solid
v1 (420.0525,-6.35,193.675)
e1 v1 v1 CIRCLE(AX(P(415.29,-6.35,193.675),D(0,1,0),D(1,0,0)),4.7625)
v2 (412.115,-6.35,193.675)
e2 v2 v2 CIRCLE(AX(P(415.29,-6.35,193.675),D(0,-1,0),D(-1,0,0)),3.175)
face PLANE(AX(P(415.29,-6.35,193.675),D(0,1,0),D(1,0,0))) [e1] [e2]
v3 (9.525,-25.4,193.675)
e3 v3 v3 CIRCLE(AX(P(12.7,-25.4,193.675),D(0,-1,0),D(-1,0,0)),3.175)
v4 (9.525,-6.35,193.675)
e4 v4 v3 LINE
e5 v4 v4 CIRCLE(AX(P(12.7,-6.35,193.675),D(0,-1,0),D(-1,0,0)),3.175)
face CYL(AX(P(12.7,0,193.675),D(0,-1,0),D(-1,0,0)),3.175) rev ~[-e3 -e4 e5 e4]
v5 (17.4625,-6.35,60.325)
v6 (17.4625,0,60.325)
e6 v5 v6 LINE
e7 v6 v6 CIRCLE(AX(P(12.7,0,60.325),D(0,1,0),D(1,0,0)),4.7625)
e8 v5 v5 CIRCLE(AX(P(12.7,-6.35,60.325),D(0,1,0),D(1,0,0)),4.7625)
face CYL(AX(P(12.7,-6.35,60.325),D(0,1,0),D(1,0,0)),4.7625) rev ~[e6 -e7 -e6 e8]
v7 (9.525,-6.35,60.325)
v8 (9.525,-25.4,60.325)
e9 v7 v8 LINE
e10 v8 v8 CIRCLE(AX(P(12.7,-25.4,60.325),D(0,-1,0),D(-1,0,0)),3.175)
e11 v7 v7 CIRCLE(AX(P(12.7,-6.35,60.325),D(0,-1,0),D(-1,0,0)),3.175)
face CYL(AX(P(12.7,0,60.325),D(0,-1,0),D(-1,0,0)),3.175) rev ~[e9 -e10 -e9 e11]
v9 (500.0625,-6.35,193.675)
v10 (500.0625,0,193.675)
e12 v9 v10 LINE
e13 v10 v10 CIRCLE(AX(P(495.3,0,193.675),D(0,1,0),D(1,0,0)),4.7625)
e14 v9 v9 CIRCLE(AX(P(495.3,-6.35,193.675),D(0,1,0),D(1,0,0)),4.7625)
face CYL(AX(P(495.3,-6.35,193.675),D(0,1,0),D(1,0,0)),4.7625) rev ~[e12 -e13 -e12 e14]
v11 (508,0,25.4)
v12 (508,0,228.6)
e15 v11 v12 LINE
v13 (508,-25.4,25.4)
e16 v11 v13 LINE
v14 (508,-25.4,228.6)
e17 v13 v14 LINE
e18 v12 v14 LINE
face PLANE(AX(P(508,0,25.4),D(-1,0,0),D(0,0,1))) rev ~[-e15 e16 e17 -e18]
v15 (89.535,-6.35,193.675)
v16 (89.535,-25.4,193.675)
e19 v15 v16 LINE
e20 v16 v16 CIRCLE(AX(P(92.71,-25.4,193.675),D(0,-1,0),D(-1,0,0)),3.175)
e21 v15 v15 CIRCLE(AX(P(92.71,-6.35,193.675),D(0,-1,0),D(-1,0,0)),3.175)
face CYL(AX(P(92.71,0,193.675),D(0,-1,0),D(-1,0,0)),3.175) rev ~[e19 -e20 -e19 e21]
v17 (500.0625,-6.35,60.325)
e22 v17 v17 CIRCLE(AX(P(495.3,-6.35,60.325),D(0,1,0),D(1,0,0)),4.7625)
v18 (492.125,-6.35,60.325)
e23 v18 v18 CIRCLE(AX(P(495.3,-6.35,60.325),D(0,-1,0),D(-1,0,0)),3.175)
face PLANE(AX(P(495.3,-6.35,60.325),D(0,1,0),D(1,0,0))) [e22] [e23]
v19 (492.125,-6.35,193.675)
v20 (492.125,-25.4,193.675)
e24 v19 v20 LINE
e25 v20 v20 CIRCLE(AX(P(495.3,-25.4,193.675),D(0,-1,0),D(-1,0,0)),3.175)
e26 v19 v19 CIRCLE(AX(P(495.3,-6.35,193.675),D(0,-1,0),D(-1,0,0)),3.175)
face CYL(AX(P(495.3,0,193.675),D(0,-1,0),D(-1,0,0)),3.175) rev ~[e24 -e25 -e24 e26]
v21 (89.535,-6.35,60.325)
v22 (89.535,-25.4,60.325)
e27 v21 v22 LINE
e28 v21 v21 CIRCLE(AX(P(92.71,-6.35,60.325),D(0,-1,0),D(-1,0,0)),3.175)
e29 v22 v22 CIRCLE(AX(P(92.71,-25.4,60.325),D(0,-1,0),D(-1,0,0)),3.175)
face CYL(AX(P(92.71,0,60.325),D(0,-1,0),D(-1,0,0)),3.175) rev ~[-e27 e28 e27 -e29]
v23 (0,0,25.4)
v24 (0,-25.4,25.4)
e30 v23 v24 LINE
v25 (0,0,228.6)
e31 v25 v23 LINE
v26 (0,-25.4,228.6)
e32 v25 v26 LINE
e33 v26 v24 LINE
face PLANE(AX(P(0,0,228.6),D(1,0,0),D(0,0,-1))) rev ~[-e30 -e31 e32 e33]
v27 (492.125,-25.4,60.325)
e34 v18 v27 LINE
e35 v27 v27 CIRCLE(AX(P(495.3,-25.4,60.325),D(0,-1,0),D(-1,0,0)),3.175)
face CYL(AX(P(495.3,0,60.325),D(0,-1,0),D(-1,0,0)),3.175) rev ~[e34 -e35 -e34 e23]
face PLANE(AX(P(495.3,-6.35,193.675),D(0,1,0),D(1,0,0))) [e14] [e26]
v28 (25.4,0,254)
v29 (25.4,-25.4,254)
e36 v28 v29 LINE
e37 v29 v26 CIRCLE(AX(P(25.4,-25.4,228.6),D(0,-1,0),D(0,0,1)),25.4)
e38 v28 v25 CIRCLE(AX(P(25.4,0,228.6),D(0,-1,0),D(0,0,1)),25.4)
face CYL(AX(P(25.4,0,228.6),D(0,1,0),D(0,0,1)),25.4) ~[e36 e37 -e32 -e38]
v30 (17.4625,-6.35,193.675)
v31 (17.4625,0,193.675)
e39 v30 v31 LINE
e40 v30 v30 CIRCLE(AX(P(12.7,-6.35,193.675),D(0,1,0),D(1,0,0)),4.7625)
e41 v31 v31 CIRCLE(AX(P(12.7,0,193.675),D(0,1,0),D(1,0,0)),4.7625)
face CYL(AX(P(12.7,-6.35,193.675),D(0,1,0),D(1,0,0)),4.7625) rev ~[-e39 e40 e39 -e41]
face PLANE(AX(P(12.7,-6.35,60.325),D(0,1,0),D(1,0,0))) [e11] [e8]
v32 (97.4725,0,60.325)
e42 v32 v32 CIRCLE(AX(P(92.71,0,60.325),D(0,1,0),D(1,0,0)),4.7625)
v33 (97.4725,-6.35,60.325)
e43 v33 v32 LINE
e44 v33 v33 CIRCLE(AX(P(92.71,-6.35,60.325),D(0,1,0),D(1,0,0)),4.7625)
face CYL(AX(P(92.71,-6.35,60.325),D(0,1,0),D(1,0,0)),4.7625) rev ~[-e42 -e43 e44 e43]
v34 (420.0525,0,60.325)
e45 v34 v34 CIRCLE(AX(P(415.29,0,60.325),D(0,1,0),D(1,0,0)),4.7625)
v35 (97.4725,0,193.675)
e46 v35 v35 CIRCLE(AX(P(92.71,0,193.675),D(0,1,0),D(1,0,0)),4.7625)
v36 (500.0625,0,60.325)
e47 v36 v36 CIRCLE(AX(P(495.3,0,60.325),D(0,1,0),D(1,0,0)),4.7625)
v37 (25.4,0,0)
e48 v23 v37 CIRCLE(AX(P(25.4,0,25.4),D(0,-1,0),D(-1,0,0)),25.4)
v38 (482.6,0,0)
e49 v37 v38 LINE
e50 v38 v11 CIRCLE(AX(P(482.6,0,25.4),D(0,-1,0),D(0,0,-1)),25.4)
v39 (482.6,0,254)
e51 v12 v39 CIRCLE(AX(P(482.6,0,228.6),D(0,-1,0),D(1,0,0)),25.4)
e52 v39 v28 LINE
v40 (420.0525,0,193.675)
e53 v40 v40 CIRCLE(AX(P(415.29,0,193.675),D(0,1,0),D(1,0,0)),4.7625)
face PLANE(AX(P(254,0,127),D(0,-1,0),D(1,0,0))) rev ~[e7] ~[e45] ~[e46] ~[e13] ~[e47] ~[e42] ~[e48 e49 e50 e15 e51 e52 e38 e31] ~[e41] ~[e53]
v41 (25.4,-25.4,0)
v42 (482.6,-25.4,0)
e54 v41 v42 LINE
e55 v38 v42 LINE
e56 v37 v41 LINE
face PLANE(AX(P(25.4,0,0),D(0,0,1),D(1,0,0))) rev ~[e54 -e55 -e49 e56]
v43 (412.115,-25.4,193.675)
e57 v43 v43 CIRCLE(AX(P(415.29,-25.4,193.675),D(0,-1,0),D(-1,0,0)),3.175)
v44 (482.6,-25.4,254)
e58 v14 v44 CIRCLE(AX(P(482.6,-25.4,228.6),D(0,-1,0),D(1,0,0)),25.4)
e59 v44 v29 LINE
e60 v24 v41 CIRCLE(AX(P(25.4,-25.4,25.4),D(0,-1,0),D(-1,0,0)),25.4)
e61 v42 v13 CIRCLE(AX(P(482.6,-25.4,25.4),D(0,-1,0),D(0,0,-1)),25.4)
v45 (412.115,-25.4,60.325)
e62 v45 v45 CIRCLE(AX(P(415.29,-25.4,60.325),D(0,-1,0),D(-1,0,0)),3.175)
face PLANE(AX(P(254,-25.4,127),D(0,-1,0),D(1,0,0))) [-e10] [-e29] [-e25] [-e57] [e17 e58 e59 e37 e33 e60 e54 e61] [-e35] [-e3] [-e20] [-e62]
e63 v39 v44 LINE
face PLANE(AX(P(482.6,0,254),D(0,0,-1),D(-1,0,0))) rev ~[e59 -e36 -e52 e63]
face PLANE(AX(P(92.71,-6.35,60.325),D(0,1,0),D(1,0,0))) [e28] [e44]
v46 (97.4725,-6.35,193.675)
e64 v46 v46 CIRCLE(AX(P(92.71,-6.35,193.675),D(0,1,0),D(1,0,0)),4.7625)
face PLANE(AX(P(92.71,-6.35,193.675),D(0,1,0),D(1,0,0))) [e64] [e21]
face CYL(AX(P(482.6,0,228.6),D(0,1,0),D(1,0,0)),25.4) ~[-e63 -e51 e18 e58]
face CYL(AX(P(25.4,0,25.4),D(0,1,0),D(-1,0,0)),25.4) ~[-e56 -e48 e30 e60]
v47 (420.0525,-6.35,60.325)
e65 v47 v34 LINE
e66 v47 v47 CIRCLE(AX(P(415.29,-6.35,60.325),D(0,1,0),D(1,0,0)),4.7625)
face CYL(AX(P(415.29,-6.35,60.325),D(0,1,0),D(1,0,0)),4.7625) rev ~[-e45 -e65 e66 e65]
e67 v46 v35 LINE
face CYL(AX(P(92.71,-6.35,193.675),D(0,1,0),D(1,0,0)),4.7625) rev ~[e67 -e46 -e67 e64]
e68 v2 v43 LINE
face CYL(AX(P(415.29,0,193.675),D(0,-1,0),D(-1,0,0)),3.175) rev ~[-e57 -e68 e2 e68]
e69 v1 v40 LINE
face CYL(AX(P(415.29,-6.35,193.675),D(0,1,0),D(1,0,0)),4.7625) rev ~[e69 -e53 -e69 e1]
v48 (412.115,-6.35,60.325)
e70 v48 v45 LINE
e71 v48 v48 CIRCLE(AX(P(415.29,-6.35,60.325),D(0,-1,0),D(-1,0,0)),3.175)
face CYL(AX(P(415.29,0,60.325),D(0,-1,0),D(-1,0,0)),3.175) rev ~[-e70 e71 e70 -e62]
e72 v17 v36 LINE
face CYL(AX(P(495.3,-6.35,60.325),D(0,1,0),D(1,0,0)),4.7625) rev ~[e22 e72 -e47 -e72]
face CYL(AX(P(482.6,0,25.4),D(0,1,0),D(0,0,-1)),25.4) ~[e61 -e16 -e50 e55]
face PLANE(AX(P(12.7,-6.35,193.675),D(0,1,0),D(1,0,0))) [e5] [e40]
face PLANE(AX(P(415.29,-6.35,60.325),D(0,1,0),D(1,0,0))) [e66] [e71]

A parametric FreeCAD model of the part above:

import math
import FreeCAD as App
import Part
import Sketcher

V = App.Vector
Q = App.Units.Quantity

doc = App.newDocument("Part")
body = doc.addObject("PartDesign::Body", "Body")

# Sketch on XZ plane
sketch1 = doc.addObject("Sketcher::SketchObject", "Sketch")
body.addObject(sketch1)
sketch1.AttachmentSupport = (doc.XZ_Plane, [""])
sketch1.MapMode = "FlatFace"
sketch1.addGeometry(Part.LineSegment(V(0, 229, 0), V(0, 25, 0)), False)
sketch1.addGeometry(Part.ArcOfCircle(Part.Circle(V(25, 25, 0), V(0, 0, 1), 25), math.radians(180), math.radians(270)), False)
sketch1.addGeometry(Part.LineSegment(V(25, 0, 0), V(483, 0, 0)), False)
sketch1.addGeometry(Part.ArcOfCircle(Part.Circle(V(483, 25, 0), V(0, 0, 1), 25), math.radians(-90), math.radians(0)), False)
sketch1.addGeometry(Part.LineSegment(V(508, 25, 0), V(508, 229, 0)), False)
sketch1.addGeometry(Part.ArcOfCircle(Part.Circle(V(483, 229, 0), V(0, 0, 1), 25), math.radians(0), math.radians(90)), False)
sketch1.addGeometry(Part.LineSegment(V(483, 254, 0), V(25, 254, 0)), False)
sketch1.addGeometry(Part.ArcOfCircle(Part.Circle(V(25, 229, 0), V(0, 0, 1), 25), math.radians(90), math.radians(180)), False)
sketch1.addConstraint(Sketcher.Constraint("Tangent", 0, 2, 1, 1))
sketch1.addConstraint(Sketcher.Constraint("Tangent", 1, 2, 2, 1))
sketch1.addConstraint(Sketcher.Constraint("Tangent", 2, 2, 3, 1))
sketch1.addConstraint(Sketcher.Constraint("Tangent", 3, 2, 4, 1))
sketch1.addConstraint(Sketcher.Constraint("Tangent", 4, 2, 5, 1))
sketch1.addConstraint(Sketcher.Constraint("Tangent", 5, 2, 6, 1))
sketch1.addConstraint(Sketcher.Constraint("Tangent", 6, 2, 7, 1))
sketch1.addConstraint(Sketcher.Constraint("Tangent", 7, 2, 0, 1))
sketch1.addConstraint(Sketcher.Constraint("Vertical", 0))
sketch1.addConstraint(Sketcher.Constraint("Horizontal", 2))
sketch1.addConstraint(Sketcher.Constraint("Vertical", 4))
sketch1.addConstraint(Sketcher.Constraint("Horizontal", 6))
sketch1.addConstraint(Sketcher.Constraint("Equal", 1, 3))
sketch1.addConstraint(Sketcher.Constraint("Equal", 3, 5))
sketch1.addConstraint(Sketcher.Constraint("Equal", 5, 7))
sketch1.addConstraint(Sketcher.Constraint("PointOnObject", 0, 2, -2))
sketch1.addConstraint(Sketcher.Constraint("PointOnObject", 1, 2, -1))
sketch1.addConstraint(Sketcher.Constraint("Radius", 1, Q("1 in")))
sketch1.addConstraint(Sketcher.Constraint("DistanceX", 2, 1, 2, 2, Q("18 in")))
sketch1.addConstraint(Sketcher.Constraint("DistanceY", 0, 2, 0, 1, Q("8 in")))
pad1 = doc.addObject("PartDesign::Pad", "Pad")
body.addObject(pad1)
pad1.Profile = sketch1
pad1.Length = Q("1 in")

# Sketch on XZ plane
sketch2 = doc.addObject("Sketcher::SketchObject", "Sketch001")
body.addObject(sketch2)
sketch2.AttachmentSupport = (doc.XZ_Plane, [""])
sketch2.MapMode = "FlatFace"
sketch2.addGeometry(Part.Circle(V(12.7, 193.7, 0), V(0, 0, 1), 3.2), False)
sketch2.addGeometry(Part.Circle(V(92.7, 193.7, 0), V(0, 0, 1), 3.2), False)
sketch2.addGeometry(Part.Circle(V(12.7, 60.3, 0), V(0, 0, 1), 3.2), False)
sketch2.addGeometry(Part.Circle(V(92.7, 60.3, 0), V(0, 0, 1), 3.2), False)
sketch2.addGeometry(Part.Circle(V(415.3, 193.7, 0), V(0, 0, 1), 3.2), False)
sketch2.addGeometry(Part.Circle(V(495.3, 193.7, 0), V(0, 0, 1), 3.2), False)
sketch2.addGeometry(Part.Circle(V(415.3, 60.3, 0), V(0, 0, 1), 3.2), False)
sketch2.addGeometry(Part.Circle(V(495.3, 60.3, 0), V(0, 0, 1), 3.2), False)
sketch2.addConstraint(Sketcher.Constraint("Equal", 0, 1))
sketch2.addConstraint(Sketcher.Constraint("Equal", 1, 2))
sketch2.addConstraint(Sketcher.Constraint("Equal", 2, 3))
sketch2.addConstraint(Sketcher.Constraint("Equal", 3, 4))
sketch2.addConstraint(Sketcher.Constraint("Equal", 4, 5))
sketch2.addConstraint(Sketcher.Constraint("Equal", 5, 6))
sketch2.addConstraint(Sketcher.Constraint("Equal", 6, 7))
sketch2.addConstraint(Sketcher.Constraint("Horizontal", 0, 3, 1, 3))
sketch2.addConstraint(Sketcher.Constraint("Horizontal", 2, 3, 3, 3))
sketch2.addConstraint(Sketcher.Constraint("Horizontal", 1, 3, 4, 3))
sketch2.addConstraint(Sketcher.Constraint("Horizontal", 4, 3, 5, 3))
sketch2.addConstraint(Sketcher.Constraint("Horizontal", 3, 3, 6, 3))
sketch2.addConstraint(Sketcher.Constraint("Horizontal", 6, 3, 7, 3))
sketch2.addConstraint(Sketcher.Constraint("Vertical", 0, 3, 2, 3))
sketch2.addConstraint(Sketcher.Constraint("Vertical", 1, 3, 3, 3))
sketch2.addConstraint(Sketcher.Constraint("Vertical", 4, 3, 6, 3))
sketch2.addConstraint(Sketcher.Constraint("Vertical", 5, 3, 7, 3))
sketch2.addConstraint(Sketcher.Constraint("Diameter", 0, Q("0.25 in")))
sketch2.addConstraint(Sketcher.Constraint("DistanceX", 0, 3, 5, 3, Q("19 in")))
sketch2.addConstraint(Sketcher.Constraint("DistanceX", -1, 1, 0, 3, Q("0.5 in")))
sketch2.addConstraint(Sketcher.Constraint("DistanceX", 1, 3, 4, 3, Q("12.7 in")))
sketch2.addConstraint(Sketcher.Constraint("DistanceX", -1, 1, 1, 3, Q("3.65 in")))
sketch2.addConstraint(Sketcher.Constraint("DistanceY", 2, 3, 0, 3, Q("5.25 in")))
sketch2.addConstraint(Sketcher.Constraint("DistanceY", -1, 1, 0, 3, Q("7.625 in")))
doc.recompute()
hole = doc.addObject("PartDesign::Hole", "Hole")
body.addObject(hole)
hole.Profile = sketch2
hole.ThreadType = "None"
hole.Diameter = Q("0.25 in")
hole.DepthType = "ThroughAll"
hole.HoleCutType = "Counterbore"
hole.HoleCutDiameter = Q("0.375 in")
hole.HoleCutDepth = Q("0.25 in")
hole.Reversed = True

doc.recompute()
